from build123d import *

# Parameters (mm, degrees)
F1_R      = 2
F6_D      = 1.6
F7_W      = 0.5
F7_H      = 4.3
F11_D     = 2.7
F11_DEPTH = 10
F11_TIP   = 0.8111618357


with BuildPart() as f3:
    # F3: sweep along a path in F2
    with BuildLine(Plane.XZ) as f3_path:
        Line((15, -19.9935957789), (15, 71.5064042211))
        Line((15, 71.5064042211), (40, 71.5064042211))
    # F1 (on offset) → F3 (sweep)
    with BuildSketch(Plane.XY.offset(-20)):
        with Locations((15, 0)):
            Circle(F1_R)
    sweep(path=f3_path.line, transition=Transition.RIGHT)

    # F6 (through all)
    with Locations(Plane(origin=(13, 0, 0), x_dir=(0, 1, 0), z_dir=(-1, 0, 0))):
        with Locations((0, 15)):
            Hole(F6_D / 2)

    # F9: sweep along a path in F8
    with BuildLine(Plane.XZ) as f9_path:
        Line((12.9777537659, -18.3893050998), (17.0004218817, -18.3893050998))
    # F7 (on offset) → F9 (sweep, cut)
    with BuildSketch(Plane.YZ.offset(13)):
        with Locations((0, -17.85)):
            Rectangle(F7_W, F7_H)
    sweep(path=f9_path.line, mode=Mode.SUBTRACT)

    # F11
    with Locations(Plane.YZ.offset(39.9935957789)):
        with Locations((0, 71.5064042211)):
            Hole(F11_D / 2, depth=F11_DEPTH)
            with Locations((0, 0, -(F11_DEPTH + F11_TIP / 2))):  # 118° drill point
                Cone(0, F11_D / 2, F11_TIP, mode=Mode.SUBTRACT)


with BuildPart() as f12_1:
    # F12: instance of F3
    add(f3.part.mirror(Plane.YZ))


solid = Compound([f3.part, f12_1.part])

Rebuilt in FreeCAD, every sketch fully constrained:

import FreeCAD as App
import Part
import Sketcher

V = App.Vector

doc = App.newDocument("Part")
body = doc.addObject("PartDesign::Body", "Body")

sketch1 = body.newObject("Sketcher::SketchObject", "Sketch")
sketch1.AttachmentSupport = (doc.getObject("XY_Plane"), [""])
sketch1.MapMode = "FlatFace"
sketch1.AttachmentOffset = App.Placement(V(0, 0, -20), App.Rotation())
sketch1.addGeometry(Part.Circle(V(15, 0, 0), V(0, 0, 1), 2), False)
sketch1.addConstraint([
    Sketcher.Constraint("PointOnObject", 0, 3, -1),
    Sketcher.Constraint("Diameter", 0, 4.0),
    Sketcher.Constraint("DistanceX", -1, 1, 0, 3, 15.0),
])

sketch2 = body.newObject("Sketcher::SketchObject", "Sketch001")
sketch2.AttachmentSupport = (doc.getObject("XZ_Plane"), [""])
sketch2.MapMode = "FlatFace"
sketch2.addGeometry([
    Part.LineSegment(V(15, -19.993596, 0), V(15, 71.506404, 0)),
    Part.LineSegment(V(15, 71.506404, 0), V(40, 71.506404, 0)),
], False)
sketch2.addConstraint([
    Sketcher.Constraint("Coincident", 0, 2, 1, 1),
    Sketcher.Constraint("Vertical", 0),
    Sketcher.Constraint("Horizontal", 1),
    Sketcher.Constraint("DistanceX", 1, 1, 1, 2, 25.0),
    Sketcher.Constraint("DistanceY", 0, 1, 0, 2, 91.5),
    Sketcher.Constraint("DistanceX", -1, 1, 0, 1, 15.0),
    Sketcher.Constraint("DistanceY", 0, 1, -1, 1, 19.993596),
])
doc.recompute()

additivepipe = body.newObject("PartDesign::AdditivePipe", "AdditivePipe")
additivepipe.Profile = sketch1
additivepipe.Spine = (sketch2, ["Edge1", "Edge2"])
additivepipe.Transition = "Right corner"

sketch3 = body.newObject("Sketcher::SketchObject", "Sketch002")
sketch3.AttachmentSupport = (doc.getObject("YZ_Plane"), [""])
sketch3.MapMode = "FlatFace"
sketch3.AttachmentOffset = App.Placement(V(0, 0, 13), App.Rotation())
sketch3.addGeometry(Part.Circle(V(0, -15, 0), V(0, 0, 1), 0.8), False)
sketch3.addConstraint([
    Sketcher.Constraint("PointOnObject", 0, 3, -2),
    Sketcher.Constraint("Diameter", 0, 1.6),
    Sketcher.Constraint("DistanceY", 0, 3, -1, 1, 15.0),
])
doc.recompute()
hole = body.newObject("PartDesign::Hole", "Hole")
hole.Profile = sketch3
hole.ThreadType = "None"
hole.Diameter = 1.6
hole.DepthType = "ThroughAll"
hole.Reversed = True

sketch4 = body.newObject("Sketcher::SketchObject", "Sketch003")
sketch4.AttachmentSupport = (doc.getObject("YZ_Plane"), [""])
sketch4.MapMode = "FlatFace"
sketch4.AttachmentOffset = App.Placement(V(0, 0, 13), App.Rotation())
sketch4.addGeometry([
    Part.LineSegment(V(-0.25, -15.7, 0), V(-0.25, -20, 0)),
    Part.LineSegment(V(-0.25, -20, 0), V(0.25, -20, 0)),
    Part.LineSegment(V(0.25, -20, 0), V(0.25, -15.7, 0)),
    Part.LineSegment(V(0.25, -15.7, 0), V(-0.25, -15.7, 0)),
], False)
sketch4.addConstraint([
    Sketcher.Constraint("Coincident", 0, 2, 1, 1),
    Sketcher.Constraint("Coincident", 1, 2, 2, 1),
    Sketcher.Constraint("Coincident", 2, 2, 3, 1),
    Sketcher.Constraint("Coincident", 3, 2, 0, 1),
    Sketcher.Constraint("Vertical", 0),
    Sketcher.Constraint("Horizontal", 1),
    Sketcher.Constraint("Vertical", 2),
    Sketcher.Constraint("Horizontal", 3),
    Sketcher.Constraint("DistanceX", 1, 1, 1, 2, 0.5),
    Sketcher.Constraint("DistanceY", 0, 2, 0, 1, 4.3),
    Sketcher.Constraint("DistanceY", 0, 2, -1, 1, 20.0),
    Sketcher.Constraint("DistanceX", 0, 2, -1, 1, 0.25),
])

sketch5 = body.newObject("Sketcher::SketchObject", "Sketch004")
sketch5.AttachmentSupport = (doc.getObject("XY_Plane"), [""])
sketch5.MapMode = "FlatFace"
sketch5.AttachmentOffset = App.Placement(V(0, 0, -18.389305), App.Rotation())
sketch5.addGeometry(Part.LineSegment(V(12.977754, 0, 0), V(17.000422, 0, 0)), False)
sketch5.addConstraint([
    Sketcher.Constraint("Horizontal", 0),
    Sketcher.Constraint("PointOnObject", 0, 1, -1),
    Sketcher.Constraint("DistanceX", 0, 1, 0, 2, 4.022668),
    Sketcher.Constraint("DistanceX", -1, 1, 0, 2, 17.000422),
])
doc.recompute()

subtractivepipe = body.newObject("PartDesign::SubtractivePipe", "SubtractivePipe")
subtractivepipe.Profile = sketch4
subtractivepipe.Spine = (sketch5, ["Edge1"])

sketch6 = body.newObject("Sketcher::SketchObject", "Sketch005")
sketch6.AttachmentSupport = (doc.getObject("YZ_Plane"), [""])
sketch6.MapMode = "FlatFace"
sketch6.AttachmentOffset = App.Placement(V(0, 0, 39.993596), App.Rotation())
sketch6.addGeometry(Part.Circle(V(0, 71.506404, 0), V(0, 0, 1), 1.35), False)
sketch6.addConstraint([
    Sketcher.Constraint("PointOnObject", 0, 3, -2),
    Sketcher.Constraint("Diameter", 0, 2.7),
    Sketcher.Constraint("DistanceY", -1, 1, 0, 3, 71.506404),
])
doc.recompute()
hole2 = body.newObject("PartDesign::Hole", "Hole001")
hole2.Profile = sketch6
hole2.ThreadType = "None"
hole2.Diameter = 2.7
hole2.DepthType = "Dimension"
hole2.Depth = 10
hole2.DrillPoint = "Angled"
hole2.DrillPointAngle = 118
body2 = doc.addObject("PartDesign::Body", "Body001")
doc.recompute()

mirroring = doc.addObject("Part::Mirroring", "Mirroring")
mirroring.Source = body
mirroring.Base = V(0, 0, 0)
mirroring.Normal = V(1, 0, 0)
body2.BaseFeature = mirroring
doc.recompute()
mirroring.Visibility = False

doc.recompute()
